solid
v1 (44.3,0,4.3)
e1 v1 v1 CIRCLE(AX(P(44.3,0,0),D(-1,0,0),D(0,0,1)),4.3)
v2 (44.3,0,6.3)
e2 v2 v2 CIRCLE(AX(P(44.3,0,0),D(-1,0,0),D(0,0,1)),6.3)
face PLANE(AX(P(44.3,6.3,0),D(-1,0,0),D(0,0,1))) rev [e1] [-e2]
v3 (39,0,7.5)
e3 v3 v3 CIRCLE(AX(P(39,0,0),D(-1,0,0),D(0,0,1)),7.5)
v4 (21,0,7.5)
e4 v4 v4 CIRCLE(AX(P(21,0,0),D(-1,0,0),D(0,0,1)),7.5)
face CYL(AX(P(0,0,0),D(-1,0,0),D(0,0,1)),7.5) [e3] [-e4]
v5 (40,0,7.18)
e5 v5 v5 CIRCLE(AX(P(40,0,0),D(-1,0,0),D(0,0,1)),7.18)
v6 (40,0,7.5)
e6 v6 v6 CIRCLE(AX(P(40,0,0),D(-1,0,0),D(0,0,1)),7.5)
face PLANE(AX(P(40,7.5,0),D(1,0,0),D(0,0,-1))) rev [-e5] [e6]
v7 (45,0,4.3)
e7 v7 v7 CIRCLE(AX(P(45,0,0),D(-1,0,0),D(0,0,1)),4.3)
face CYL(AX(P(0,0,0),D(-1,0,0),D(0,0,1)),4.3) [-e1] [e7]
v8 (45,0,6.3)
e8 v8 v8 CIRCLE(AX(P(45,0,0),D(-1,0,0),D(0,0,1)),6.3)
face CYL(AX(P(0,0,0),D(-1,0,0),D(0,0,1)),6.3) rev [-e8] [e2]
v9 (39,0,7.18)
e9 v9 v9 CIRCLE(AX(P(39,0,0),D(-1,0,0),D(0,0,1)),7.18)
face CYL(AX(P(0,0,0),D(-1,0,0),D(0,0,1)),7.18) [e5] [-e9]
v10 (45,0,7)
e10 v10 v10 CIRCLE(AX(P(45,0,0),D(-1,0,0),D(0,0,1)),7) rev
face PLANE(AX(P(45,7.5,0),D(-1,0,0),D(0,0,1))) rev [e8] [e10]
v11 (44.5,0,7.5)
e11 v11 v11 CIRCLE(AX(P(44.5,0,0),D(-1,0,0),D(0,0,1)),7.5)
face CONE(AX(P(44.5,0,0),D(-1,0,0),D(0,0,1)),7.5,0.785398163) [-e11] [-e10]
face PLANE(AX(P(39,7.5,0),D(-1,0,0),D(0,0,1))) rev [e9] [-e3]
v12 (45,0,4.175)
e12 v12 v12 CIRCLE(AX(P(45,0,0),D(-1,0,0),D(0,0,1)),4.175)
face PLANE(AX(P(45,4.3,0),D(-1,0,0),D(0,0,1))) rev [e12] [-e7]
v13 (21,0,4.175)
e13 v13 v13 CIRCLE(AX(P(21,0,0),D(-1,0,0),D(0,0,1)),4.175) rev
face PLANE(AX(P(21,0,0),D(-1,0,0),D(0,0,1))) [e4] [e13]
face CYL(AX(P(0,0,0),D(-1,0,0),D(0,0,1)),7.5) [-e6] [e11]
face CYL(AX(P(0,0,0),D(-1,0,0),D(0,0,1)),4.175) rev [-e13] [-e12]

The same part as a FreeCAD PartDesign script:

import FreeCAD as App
import Part
import Sketcher
Q = App.Units.Quantity


def edges_at(feature, points):
    """Names of the edges that pass closest to the given points."""
    edges = feature.Shape.Edges
    near = lambda p: min(range(len(edges)), key=lambda i: edges[i].distToShape(Part.Vertex(*p))[0])
    return sorted({f"Edge{near(p) + 1}" for p in points})

doc = App.newDocument("Part")
body = doc.addObject("PartDesign::Body", "Body")

# Sketch on XY plane
sketch1 = body.newObject("Sketcher::SketchObject", "Sketch")
sketch1.AttachmentSupport = (doc.getObject("XY_Plane"), [""])
sketch1.MapMode = "FlatFace"
sketch1.addGeometry([
    Part.LineSegment(App.Vector(0, 4.3, 0), App.Vector(0, 4.175, 0)),  # 0
    Part.LineSegment(App.Vector(0, 4.175, 0), App.Vector(45, 4.175, 0)),  # 1
    Part.LineSegment(App.Vector(45, 4.175, 0), App.Vector(45, 4.3, 0)),  # 2
    Part.LineSegment(App.Vector(45, 4.3, 0), App.Vector(44.3, 4.3, 0)),  # 3
    Part.LineSegment(App.Vector(44.3, 4.3, 0), App.Vector(44.3, 6.3, 0)),  # 4
    Part.LineSegment(App.Vector(44.3, 6.3, 0), App.Vector(45, 6.3, 0)),  # 5
    Part.LineSegment(App.Vector(45, 6.3, 0), App.Vector(45, 7.5, 0)),  # 6
    Part.LineSegment(App.Vector(45, 7.5, 0), App.Vector(40, 7.5, 0)),  # 7
    Part.LineSegment(App.Vector(40, 7.5, 0), App.Vector(40, 7.18, 0)),  # 8
    Part.LineSegment(App.Vector(40, 7.18, 0), App.Vector(39, 7.18, 0)),  # 9
    Part.LineSegment(App.Vector(39, 7.18, 0), App.Vector(39, 7.5, 0)),  # 10
    Part.LineSegment(App.Vector(39, 7.5, 0), App.Vector(6, 7.5, 0)),  # 11
    Part.LineSegment(App.Vector(6, 7.5, 0), App.Vector(6, 7.18, 0)),  # 12
    Part.LineSegment(App.Vector(6, 7.18, 0), App.Vector(5, 7.18, 0)),  # 13
    Part.LineSegment(App.Vector(5, 7.18, 0), App.Vector(5, 7.5, 0)),  # 14
    Part.LineSegment(App.Vector(5, 7.5, 0), App.Vector(0, 7.5, 0)),  # 15
    Part.LineSegment(App.Vector(0, 7.5, 0), App.Vector(0, 6.3, 0)),  # 16
    Part.LineSegment(App.Vector(0, 6.3, 0), App.Vector(0.7, 6.3, 0)),  # 17
    Part.LineSegment(App.Vector(0.7, 6.3, 0), App.Vector(0.7, 4.3, 0)),  # 18
    Part.LineSegment(App.Vector(0.7, 4.3, 0), App.Vector(0, 4.3, 0)),  # 19
], False)
sketch1.addConstraint([
    Sketcher.Constraint("Coincident", 0, 2, 1, 1),
    Sketcher.Constraint("Coincident", 1, 2, 2, 1),
    Sketcher.Constraint("Coincident", 2, 2, 3, 1),
    Sketcher.Constraint("Coincident", 3, 2, 4, 1),
    Sketcher.Constraint("Coincident", 4, 2, 5, 1),
    Sketcher.Constraint("Coincident", 5, 2, 6, 1),
    Sketcher.Constraint("Coincident", 6, 2, 7, 1),
    Sketcher.Constraint("Coincident", 7, 2, 8, 1),
    Sketcher.Constraint("Coincident", 8, 2, 9, 1),
    Sketcher.Constraint("Coincident", 9, 2, 10, 1),
    Sketcher.Constraint("Coincident", 10, 2, 11, 1),
    Sketcher.Constraint("Coincident", 11, 2, 12, 1),
    Sketcher.Constraint("Coincident", 12, 2, 13, 1),
    Sketcher.Constraint("Coincident", 13, 2, 14, 1),
    Sketcher.Constraint("Coincident", 14, 2, 15, 1),
    Sketcher.Constraint("Coincident", 15, 2, 16, 1),
    Sketcher.Constraint("Coincident", 16, 2, 17, 1),
    Sketcher.Constraint("Coincident", 17, 2, 18, 1),
    Sketcher.Constraint("Coincident", 18, 2, 19, 1),
    Sketcher.Constraint("Coincident", 19, 2, 0, 1),
    Sketcher.Constraint("Vertical", 0),
    Sketcher.Constraint("Horizontal", 1),
    Sketcher.Constraint("Vertical", 2),
    Sketcher.Constraint("Horizontal", 3),
    Sketcher.Constraint("Vertical", 4),
    Sketcher.Constraint("Horizontal", 5),
    Sketcher.Constraint("Vertical", 6),
    Sketcher.Constraint("Horizontal", 7),
    Sketcher.Constraint("Vertical", 8),
    Sketcher.Constraint("Horizontal", 9),
    Sketcher.Constraint("Vertical", 10),
    Sketcher.Constraint("Horizontal", 11),
    Sketcher.Constraint("Vertical", 12),
    Sketcher.Constraint("Horizontal", 13),
    Sketcher.Constraint("Vertical", 14),
    Sketcher.Constraint("Horizontal", 15),
    Sketcher.Constraint("Vertical", 16),
    Sketcher.Constraint("Horizontal", 17),
    Sketcher.Constraint("Vertical", 18),
    Sketcher.Constraint("Horizontal", 19),
    Sketcher.Constraint("PointOnObject", 0, 2, -2),
    Sketcher.Constraint("PointOnObject", 15, 2, -2),
    Sketcher.Constraint("Horizontal", 7, 2, 10, 2),
    Sketcher.Constraint("Horizontal", 9, 2, 12, 2),
    Sketcher.Constraint("Horizontal", 11, 2, 14, 2),
    Sketcher.Constraint("Horizontal", 5, 2, 16, 2),
    Sketcher.Constraint("Horizontal", 3, 2, 18, 2),
    Sketcher.Constraint("Vertical", 2, 2, 5, 2),
    Sketcher.Constraint("Equal", 9, 13),
    Sketcher.Constraint("Equal", 7, 15),
    Sketcher.Constraint("Equal", 5, 17),
    Sketcher.Constraint("DistanceX", 1, 1, 1, 2, Q("45 mm")),
    Sketcher.Constraint("DistanceX", 7, 2, 7, 1, Q("5 mm")),
    Sketcher.Constraint("DistanceX", 9, 2, 9, 1, Q("1 mm")),
    Sketcher.Constraint("DistanceY", 4, 1, 4, 2, Q("2 mm")),
    Sketcher.Constraint("DistanceX", 3, 2, 3, 1, Q("0.7 mm")),
    Sketcher.Constraint("DistanceY", 6, 1, 6, 2, Q("1.2 mm")),
    Sketcher.Constraint("DistanceY", 8, 2, 8, 1, Q("0.32 mm")),
    Sketcher.Constraint("DistanceY", -1, 1, 2, 2, Q("4.3 mm")),
    Sketcher.Constraint("DistanceY", 0, 2, 0, 1, Q("0.125 mm")),
])
revolution = body.newObject("PartDesign::Revolution", "Revolution")
revolution.Profile = sketch1
revolution.ReferenceAxis = (sketch1, ["H_Axis"])
revolution.Angle = 360
doc.recompute()

chamfer = body.newObject("PartDesign::Chamfer", "Chamfer")
chamfer.Base = (revolution, edges_at(revolution, [(0, 0, -7.5), (45, 0, -7.5)]))
chamfer.Size = 0.5

# Sketch on YZ plane
sketch2 = body.newObject("Sketcher::SketchObject", "Sketch001")
sketch2.AttachmentSupport = (doc.getObject("YZ_Plane"), [""])
sketch2.MapMode = "FlatFace"
sketch2.addGeometry(Part.Circle(App.Vector(0, 0, 0), App.Vector(0, 0, 1), 8.799999), False)
sketch2.addConstraint([
    Sketcher.Constraint("Coincident", 0, 3, -1, 1),
    Sketcher.Constraint("Diameter", 0, Q("17.599999 mm")),
])
pocket1 = body.newObject("PartDesign::Pocket", "Pocket")
pocket1.Profile = sketch2
pocket1.Length = 21
pocket1.Reversed = True

doc.recompute()
